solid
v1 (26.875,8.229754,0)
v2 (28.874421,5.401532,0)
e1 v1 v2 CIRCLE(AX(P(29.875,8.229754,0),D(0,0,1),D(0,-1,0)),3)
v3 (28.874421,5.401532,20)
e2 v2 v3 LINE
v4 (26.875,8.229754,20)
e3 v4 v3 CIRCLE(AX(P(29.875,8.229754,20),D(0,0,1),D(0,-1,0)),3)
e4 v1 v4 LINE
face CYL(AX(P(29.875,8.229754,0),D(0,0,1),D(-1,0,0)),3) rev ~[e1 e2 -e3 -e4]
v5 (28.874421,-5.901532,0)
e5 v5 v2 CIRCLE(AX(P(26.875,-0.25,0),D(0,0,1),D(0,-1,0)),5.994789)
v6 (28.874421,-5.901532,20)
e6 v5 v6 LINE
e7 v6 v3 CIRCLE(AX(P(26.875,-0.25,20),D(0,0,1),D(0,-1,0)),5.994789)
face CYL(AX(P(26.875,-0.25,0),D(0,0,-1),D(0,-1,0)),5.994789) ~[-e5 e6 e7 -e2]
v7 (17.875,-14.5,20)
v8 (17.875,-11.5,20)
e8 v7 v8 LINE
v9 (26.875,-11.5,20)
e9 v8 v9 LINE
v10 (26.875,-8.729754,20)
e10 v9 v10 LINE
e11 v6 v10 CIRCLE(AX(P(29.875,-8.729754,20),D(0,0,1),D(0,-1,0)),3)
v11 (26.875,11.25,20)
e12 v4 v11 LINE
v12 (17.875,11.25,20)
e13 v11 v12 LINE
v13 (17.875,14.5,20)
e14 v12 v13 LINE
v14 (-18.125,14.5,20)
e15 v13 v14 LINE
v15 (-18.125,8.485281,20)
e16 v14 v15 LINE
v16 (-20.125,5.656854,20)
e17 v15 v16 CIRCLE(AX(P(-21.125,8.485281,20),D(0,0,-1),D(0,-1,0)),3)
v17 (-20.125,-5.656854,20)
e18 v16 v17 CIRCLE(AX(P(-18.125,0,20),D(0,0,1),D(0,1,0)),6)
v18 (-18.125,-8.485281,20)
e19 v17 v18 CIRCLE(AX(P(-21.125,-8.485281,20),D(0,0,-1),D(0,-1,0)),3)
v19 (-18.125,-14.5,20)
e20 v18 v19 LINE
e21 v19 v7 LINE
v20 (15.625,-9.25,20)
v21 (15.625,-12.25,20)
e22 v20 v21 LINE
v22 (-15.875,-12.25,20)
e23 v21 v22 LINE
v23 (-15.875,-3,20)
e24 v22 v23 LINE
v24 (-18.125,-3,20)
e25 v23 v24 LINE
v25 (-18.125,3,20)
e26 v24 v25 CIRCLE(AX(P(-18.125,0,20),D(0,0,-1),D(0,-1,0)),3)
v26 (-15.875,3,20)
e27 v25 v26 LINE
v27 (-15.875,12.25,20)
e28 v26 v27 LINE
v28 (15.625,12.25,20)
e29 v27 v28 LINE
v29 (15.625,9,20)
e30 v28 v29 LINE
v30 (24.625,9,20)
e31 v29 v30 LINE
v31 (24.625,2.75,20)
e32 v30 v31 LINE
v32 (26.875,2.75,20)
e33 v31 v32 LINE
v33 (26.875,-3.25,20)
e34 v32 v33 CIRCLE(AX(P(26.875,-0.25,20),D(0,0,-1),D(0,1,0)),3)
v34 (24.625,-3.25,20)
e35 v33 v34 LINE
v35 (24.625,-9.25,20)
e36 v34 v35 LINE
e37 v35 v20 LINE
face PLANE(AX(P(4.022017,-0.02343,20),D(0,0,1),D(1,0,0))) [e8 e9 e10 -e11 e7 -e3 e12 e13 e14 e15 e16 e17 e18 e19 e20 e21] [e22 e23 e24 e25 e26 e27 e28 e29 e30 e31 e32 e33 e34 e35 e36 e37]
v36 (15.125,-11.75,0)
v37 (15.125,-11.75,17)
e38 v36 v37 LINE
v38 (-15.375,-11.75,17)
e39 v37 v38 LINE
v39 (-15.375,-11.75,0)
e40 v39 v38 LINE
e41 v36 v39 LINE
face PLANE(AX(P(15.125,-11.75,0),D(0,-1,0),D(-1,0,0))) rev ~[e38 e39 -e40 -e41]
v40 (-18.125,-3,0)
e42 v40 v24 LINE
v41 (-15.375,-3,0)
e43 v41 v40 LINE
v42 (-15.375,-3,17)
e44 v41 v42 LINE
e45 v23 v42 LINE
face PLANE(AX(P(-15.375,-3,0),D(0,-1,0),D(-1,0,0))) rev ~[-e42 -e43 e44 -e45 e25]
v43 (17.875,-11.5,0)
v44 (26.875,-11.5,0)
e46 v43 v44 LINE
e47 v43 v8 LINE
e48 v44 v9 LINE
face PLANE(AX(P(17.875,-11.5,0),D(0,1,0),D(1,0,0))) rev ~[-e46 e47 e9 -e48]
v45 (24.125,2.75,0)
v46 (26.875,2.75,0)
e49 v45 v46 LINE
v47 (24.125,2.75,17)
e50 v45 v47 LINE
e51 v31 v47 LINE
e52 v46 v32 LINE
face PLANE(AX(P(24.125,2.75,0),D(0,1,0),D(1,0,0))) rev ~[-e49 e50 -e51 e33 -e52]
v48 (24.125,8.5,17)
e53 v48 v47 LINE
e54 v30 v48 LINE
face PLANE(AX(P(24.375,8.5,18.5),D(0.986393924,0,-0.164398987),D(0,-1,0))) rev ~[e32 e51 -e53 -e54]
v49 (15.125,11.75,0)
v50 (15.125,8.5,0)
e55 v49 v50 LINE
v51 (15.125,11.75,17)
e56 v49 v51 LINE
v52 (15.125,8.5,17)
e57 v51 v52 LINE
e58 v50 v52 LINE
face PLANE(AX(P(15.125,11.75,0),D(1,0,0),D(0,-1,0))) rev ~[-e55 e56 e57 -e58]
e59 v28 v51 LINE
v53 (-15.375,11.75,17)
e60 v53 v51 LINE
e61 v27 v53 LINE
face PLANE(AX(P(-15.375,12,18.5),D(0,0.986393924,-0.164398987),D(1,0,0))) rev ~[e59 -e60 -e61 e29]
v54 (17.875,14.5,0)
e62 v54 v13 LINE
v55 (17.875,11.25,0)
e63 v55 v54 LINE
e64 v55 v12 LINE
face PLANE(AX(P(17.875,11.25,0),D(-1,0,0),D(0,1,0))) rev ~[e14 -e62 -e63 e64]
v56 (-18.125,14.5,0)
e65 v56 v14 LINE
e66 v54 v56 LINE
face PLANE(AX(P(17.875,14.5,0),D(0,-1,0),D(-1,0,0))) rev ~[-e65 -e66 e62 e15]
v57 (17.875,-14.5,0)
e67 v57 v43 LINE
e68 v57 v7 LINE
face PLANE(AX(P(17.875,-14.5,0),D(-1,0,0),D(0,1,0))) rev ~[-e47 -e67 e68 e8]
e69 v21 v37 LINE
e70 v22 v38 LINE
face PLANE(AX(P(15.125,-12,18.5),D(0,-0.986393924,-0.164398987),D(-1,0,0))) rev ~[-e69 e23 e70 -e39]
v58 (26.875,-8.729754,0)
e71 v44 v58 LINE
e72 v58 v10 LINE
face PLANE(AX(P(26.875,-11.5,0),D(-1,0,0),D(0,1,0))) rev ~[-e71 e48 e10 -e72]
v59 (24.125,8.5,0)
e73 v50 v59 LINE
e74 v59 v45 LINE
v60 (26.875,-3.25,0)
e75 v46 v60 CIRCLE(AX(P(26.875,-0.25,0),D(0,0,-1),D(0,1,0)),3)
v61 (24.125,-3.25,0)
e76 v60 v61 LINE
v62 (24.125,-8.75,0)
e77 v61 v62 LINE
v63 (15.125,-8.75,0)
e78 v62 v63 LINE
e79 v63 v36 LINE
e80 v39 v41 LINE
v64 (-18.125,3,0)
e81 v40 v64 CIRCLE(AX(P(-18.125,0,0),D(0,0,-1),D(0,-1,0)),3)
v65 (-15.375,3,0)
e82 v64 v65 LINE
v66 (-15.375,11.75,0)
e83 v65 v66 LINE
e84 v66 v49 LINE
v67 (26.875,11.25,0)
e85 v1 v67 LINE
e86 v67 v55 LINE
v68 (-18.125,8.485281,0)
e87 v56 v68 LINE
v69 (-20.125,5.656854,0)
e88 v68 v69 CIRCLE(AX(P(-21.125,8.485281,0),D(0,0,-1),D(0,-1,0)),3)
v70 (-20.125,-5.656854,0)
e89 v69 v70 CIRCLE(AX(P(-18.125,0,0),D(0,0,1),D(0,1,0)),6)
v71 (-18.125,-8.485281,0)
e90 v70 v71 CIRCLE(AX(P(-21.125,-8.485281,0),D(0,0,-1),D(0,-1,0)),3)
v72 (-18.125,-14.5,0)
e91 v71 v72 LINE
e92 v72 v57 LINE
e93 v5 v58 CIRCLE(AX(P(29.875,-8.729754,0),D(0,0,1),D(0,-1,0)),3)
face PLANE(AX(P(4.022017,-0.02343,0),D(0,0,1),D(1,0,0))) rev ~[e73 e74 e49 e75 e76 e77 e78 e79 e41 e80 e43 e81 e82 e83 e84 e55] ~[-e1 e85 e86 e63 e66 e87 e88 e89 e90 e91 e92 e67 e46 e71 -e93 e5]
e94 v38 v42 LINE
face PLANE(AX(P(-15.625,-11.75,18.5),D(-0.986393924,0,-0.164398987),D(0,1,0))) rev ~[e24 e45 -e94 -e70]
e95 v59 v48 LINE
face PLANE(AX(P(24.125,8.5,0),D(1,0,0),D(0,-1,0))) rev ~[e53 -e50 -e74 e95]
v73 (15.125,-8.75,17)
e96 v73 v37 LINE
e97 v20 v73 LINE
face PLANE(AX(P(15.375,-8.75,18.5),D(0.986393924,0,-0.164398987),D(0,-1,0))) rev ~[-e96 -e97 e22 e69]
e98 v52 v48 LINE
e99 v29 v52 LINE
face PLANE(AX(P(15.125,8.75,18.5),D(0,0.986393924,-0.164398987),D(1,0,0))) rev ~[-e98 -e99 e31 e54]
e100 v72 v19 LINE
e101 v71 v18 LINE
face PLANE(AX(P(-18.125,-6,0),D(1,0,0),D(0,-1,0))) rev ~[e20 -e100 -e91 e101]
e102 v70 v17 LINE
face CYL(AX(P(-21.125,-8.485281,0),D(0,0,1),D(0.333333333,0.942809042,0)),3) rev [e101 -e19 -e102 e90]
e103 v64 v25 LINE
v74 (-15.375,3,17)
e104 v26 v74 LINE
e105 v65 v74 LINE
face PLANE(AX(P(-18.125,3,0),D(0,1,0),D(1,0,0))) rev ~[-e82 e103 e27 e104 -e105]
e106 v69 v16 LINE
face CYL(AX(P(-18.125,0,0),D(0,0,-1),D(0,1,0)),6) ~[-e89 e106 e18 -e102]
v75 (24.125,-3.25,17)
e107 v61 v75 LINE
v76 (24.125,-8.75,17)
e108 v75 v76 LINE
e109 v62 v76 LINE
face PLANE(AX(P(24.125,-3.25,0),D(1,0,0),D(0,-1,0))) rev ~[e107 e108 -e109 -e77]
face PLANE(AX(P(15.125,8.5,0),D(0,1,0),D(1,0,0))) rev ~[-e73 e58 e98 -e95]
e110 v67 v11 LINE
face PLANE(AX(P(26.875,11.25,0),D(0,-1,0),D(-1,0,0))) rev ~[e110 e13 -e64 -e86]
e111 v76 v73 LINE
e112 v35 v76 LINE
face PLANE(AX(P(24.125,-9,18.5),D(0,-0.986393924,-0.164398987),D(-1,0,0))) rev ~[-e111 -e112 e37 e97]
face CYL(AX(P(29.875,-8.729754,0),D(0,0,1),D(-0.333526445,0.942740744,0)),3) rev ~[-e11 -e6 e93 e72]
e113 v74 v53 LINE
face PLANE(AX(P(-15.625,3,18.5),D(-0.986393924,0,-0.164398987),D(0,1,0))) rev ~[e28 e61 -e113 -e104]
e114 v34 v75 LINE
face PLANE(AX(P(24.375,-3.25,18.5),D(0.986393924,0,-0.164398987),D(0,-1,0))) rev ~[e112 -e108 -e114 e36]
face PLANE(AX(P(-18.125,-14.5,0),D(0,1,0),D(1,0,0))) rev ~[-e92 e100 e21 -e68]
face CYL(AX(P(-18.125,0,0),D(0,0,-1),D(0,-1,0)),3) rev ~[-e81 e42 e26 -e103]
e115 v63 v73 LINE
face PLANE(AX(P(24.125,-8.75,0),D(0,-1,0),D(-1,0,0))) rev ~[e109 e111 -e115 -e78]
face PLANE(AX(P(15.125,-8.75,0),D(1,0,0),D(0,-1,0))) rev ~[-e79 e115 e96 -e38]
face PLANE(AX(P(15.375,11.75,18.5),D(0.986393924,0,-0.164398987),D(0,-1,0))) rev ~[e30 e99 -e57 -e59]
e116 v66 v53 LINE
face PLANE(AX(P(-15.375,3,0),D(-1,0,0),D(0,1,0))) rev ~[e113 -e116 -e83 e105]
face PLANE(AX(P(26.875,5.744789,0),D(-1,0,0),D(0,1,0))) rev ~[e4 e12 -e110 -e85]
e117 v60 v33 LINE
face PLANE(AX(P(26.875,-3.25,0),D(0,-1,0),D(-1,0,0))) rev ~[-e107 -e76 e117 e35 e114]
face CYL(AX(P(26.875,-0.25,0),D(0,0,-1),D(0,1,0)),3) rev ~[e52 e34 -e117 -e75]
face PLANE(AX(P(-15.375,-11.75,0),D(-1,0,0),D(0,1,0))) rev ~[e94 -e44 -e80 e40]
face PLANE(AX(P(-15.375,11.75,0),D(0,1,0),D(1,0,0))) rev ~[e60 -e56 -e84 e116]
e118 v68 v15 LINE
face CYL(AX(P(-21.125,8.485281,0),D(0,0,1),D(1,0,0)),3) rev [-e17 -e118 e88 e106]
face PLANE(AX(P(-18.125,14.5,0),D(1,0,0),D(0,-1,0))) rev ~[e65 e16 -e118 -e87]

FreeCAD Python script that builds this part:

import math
import FreeCAD as App
import Part
import Sketcher
Q = App.Units.Quantity


def edges_at(feature, points):
    """Names of the edges that pass closest to the given points."""
    edges = feature.Shape.Edges
    near = lambda p: min(range(len(edges)), key=lambda i: edges[i].distToShape(Part.Vertex(*p))[0])
    return sorted({f"Edge{near(p) + 1}" for p in points})

doc = App.newDocument("Part")
body = doc.addObject("PartDesign::Body", "Body")

# Sketch on XY plane
sketch1 = body.newObject("Sketcher::SketchObject", "Sketch")
sketch1.AttachmentSupport = (doc.getObject("XY_Plane"), [""])
sketch1.MapMode = "FlatFace"
sketch1.addGeometry([
    Part.LineSegment(App.Vector(17.9, 14.5, 0), App.Vector(-18.1, 14.5, 0)),  # 0
    Part.LineSegment(App.Vector(-18.1, 14.5, 0), App.Vector(-18.1, 6, 0)),  # 1
    Part.ArcOfCircle(Part.Circle(App.Vector(-18.1, 0, 0), App.Vector(0, 0, 1), 6), math.radians(90), math.radians(270)),  # 2
    Part.LineSegment(App.Vector(-18.1, -6, 0), App.Vector(-18.1, -14.5, 0)),  # 3
    Part.LineSegment(App.Vector(-18.1, -14.5, 0), App.Vector(17.9, -14.5, 0)),  # 4
    Part.LineSegment(App.Vector(17.9, -14.5, 0), App.Vector(17.9, -11.5, 0)),  # 5
    Part.LineSegment(App.Vector(17.9, -11.5, 0), App.Vector(26.9, -11.5, 0)),  # 6
    Part.LineSegment(App.Vector(26.9, -11.5, 0), App.Vector(26.9, -6.2, 0)),  # 7
    Part.ArcOfCircle(Part.Circle(App.Vector(26.9, -0.2, 0), App.Vector(0, 0, 1), 6), math.radians(-90), math.radians(90)),  # 8
    Part.LineSegment(App.Vector(26.9, 5.7, 0), App.Vector(26.9, 11.2, 0)),  # 9
    Part.LineSegment(App.Vector(26.9, 11.2, 0), App.Vector(17.9, 11.2, 0)),  # 10
    Part.LineSegment(App.Vector(17.9, 11.2, 0), App.Vector(17.9, 14.5, 0)),  # 11
    Part.LineSegment(App.Vector(-18.1, 3, 0), App.Vector(-15.4, 3, 0)),  # 12
    Part.LineSegment(App.Vector(-15.4, 3, 0), App.Vector(-15.4, 11.8, 0)),  # 13
    Part.LineSegment(App.Vector(-15.4, 11.8, 0), App.Vector(15.1, 11.8, 0)),  # 14
    Part.LineSegment(App.Vector(15.1, 11.8, 0), App.Vector(15.1, 8.5, 0)),  # 15
    Part.LineSegment(App.Vector(15.1, 8.5, 0), App.Vector(24.1, 8.5, 0)),  # 16
    Part.LineSegment(App.Vector(24.1, 8.5, 0), App.Vector(24.1, 2.8, 0)),  # 17
    Part.LineSegment(App.Vector(24.1, 2.8, 0), App.Vector(26.9, 2.8, 0)),  # 18
    Part.ArcOfCircle(Part.Circle(App.Vector(26.9, -0.2, 0), App.Vector(0, 0, 1), 3), math.radians(-90), math.radians(90)),  # 19
    Part.LineSegment(App.Vector(26.9, -3.2, 0), App.Vector(24.1, -3.2, 0)),  # 20
    Part.LineSegment(App.Vector(24.1, -3.2, 0), App.Vector(24.1, -8.8, 0)),  # 21
    Part.LineSegment(App.Vector(24.1, -8.8, 0), App.Vector(15.1, -8.8, 0)),  # 22
    Part.LineSegment(App.Vector(15.1, -8.8, 0), App.Vector(15.1, -11.8, 0)),  # 23
    Part.LineSegment(App.Vector(15.1, -11.8, 0), App.Vector(-15.4, -11.8, 0)),  # 24
    Part.LineSegment(App.Vector(-15.4, -11.8, 0), App.Vector(-15.4, -3, 0)),  # 25
    Part.LineSegment(App.Vector(-15.4, -3, 0), App.Vector(-18.1, -3, 0)),  # 26
    Part.ArcOfCircle(Part.Circle(App.Vector(-18.1, 0, 0), App.Vector(0, 0, 1), 3), math.radians(90), math.radians(270)),  # 27
], False)
sketch1.addConstraint([
    Sketcher.Constraint("Coincident", 0, 2, 1, 1),
    Sketcher.Constraint("Coincident", 1, 2, 2, 1),
    Sketcher.Constraint("Coincident", 2, 2, 3, 1),
    Sketcher.Constraint("Coincident", 3, 2, 4, 1),
    Sketcher.Constraint("Coincident", 4, 2, 5, 1),
    Sketcher.Constraint("Coincident", 5, 2, 6, 1),
    Sketcher.Constraint("Coincident", 6, 2, 7, 1),
    Sketcher.Constraint("Coincident", 7, 2, 8, 1),
    Sketcher.Constraint("Coincident", 8, 2, 9, 1),
    Sketcher.Constraint("Coincident", 9, 2, 10, 1),
    Sketcher.Constraint("Coincident", 10, 2, 11, 1),
    Sketcher.Constraint("Coincident", 11, 2, 0, 1),
    Sketcher.Constraint("Coincident", 12, 2, 13, 1),
    Sketcher.Constraint("Coincident", 13, 2, 14, 1),
    Sketcher.Constraint("Coincident", 14, 2, 15, 1),
    Sketcher.Constraint("Coincident", 15, 2, 16, 1),
    Sketcher.Constraint("Coincident", 16, 2, 17, 1),
    Sketcher.Constraint("Coincident", 17, 2, 18, 1),
    Sketcher.Constraint("Tangent", 18, 2, 19, 2),
    Sketcher.Constraint("Tangent", 19, 1, 20, 1),
    Sketcher.Constraint("Coincident", 20, 2, 21, 1),
    Sketcher.Constraint("Coincident", 21, 2, 22, 1),
    Sketcher.Constraint("Coincident", 22, 2, 23, 1),
    Sketcher.Constraint("Coincident", 23, 2, 24, 1),
    Sketcher.Constraint("Coincident", 24, 2, 25, 1),
    Sketcher.Constraint("Coincident", 25, 2, 26, 1),
    Sketcher.Constraint("Tangent", 26, 2, 27, 2),
    Sketcher.Constraint("Tangent", 27, 1, 12, 1),
    Sketcher.Constraint("Horizontal", 0),
    Sketcher.Constraint("Vertical", 1),
    Sketcher.Constraint("Vertical", 3),
    Sketcher.Constraint("Horizontal", 4),
    Sketcher.Constraint("Vertical", 5),
    Sketcher.Constraint("Horizontal", 6),
    Sketcher.Constraint("Vertical", 7),
    Sketcher.Constraint("Vertical", 9),
    Sketcher.Constraint("Horizontal", 10),
    Sketcher.Constraint("Vertical", 11),
    Sketcher.Constraint("Horizontal", 12),
    Sketcher.Constraint("Vertical", 13),
    Sketcher.Constraint("Horizontal", 14),
    Sketcher.Constraint("Vertical", 15),
    Sketcher.Constraint("Horizontal", 16),
    Sketcher.Constraint("Vertical", 17),
    Sketcher.Constraint("Horizontal", 18),
    Sketcher.Constraint("Horizontal", 20),
    Sketcher.Constraint("Vertical", 21),
    Sketcher.Constraint("Horizontal", 22),
    Sketcher.Constraint("Vertical", 23),
    Sketcher.Constraint("Horizontal", 24),
    Sketcher.Constraint("Vertical", 25),
    Sketcher.Constraint("Horizontal", 26),
    Sketcher.Constraint("Coincident", 19, 3, 8, 3),
    Sketcher.Constraint("Coincident", 27, 3, 2, 3),
    Sketcher.Constraint("Equal", 19, 27),
    Sketcher.Constraint("Symmetric", 1, 2, 2, 2, -1),
    Sketcher.Constraint("Symmetric", 4, 2, 11, 2, -1),
    Sketcher.Constraint("Symmetric", 14, 2, 23, 2, -1),
    Sketcher.Constraint("Vertical", 27, 3, 0, 2),
    Sketcher.Constraint("Vertical", 19, 3, 6, 2),
    Sketcher.Constraint("Vertical", 7, 2, 8, 2),
    Sketcher.Constraint("Vertical", 17, 2, 20, 2),
    Sketcher.Constraint("Vertical", 13, 2, 24, 2),
    Sketcher.Constraint("Equal", 10, 16),
    Sketcher.Constraint("Equal", 12, 18),
    Sketcher.Constraint("Equal", 11, 15),
    Sketcher.Constraint("Equal", 5, 23),
    Sketcher.Constraint("Radius", 2, Q("6 mm")),
    Sketcher.Constraint("Radius", 19, Q("3 mm")),
    Sketcher.Constraint("DistanceX", 0, 2, 0, 1, Q("36 mm")),
    Sketcher.Constraint("DistanceX", 6, 1, 6, 2, Q("9 mm")),
    Sketcher.Constraint("DistanceY", 5, 1, 5, 2, Q("3 mm")),
    Sketcher.Constraint("DistanceX", 14, 1, 14, 2, Q("30.5 mm")),
    Sketcher.Constraint("DistanceY", 1, 2, 1, 1, Q("8.5 mm")),
    Sketcher.Constraint("DistanceY", 21, 2, 21, 1, Q("5.5 mm")),
    Sketcher.Constraint("DistanceY", 8, 3, 14, 2, Q("12 mm")),
    Sketcher.Constraint("DistanceY", 15, 2, 11, 2, Q("6 mm")),
    Sketcher.Constraint("Radius", 8, Q("5.994789 mm")),
    Sketcher.Constraint("DistanceX", 2, 3, -1, 1, Q("18.125 mm")),
])
pad1 = body.newObject("PartDesign::Pad", "Pad")
pad1.Profile = sketch1
pad1.Length = 20
doc.recompute()

fillet = body.newObject("PartDesign::Fillet", "Fillet")
fillet.Base = (pad1, edges_at(pad1, [
    (26.875, -6.245, 10),
    (26.875, 5.745, 10),
    (-18.125, 6, 10),
    (-18.125, -6, 10),
]))
fillet.Radius = 3
doc.recompute()

chamfer = body.newObject("PartDesign::Chamfer", "Chamfer")
chamfer.Base = (fillet, edges_at(fillet, [
    (-15.375, 7.375, 20),
    (-0.125, 11.75, 20),
    (-15.375, -7.375, 20),
    (-0.125, -11.75, 20),
    (15.125, -10.25, 20),
    (15.125, 10.125, 20),
    (19.625, 8.5, 20),
    (24.125, 5.625, 20),
    (24.125, -6, 20),
    (19.625, -8.75, 20),
]))
chamfer.ChamferType = "Two distances"
chamfer.Size = 0.5
chamfer.Size2 = 3

doc.recompute()
